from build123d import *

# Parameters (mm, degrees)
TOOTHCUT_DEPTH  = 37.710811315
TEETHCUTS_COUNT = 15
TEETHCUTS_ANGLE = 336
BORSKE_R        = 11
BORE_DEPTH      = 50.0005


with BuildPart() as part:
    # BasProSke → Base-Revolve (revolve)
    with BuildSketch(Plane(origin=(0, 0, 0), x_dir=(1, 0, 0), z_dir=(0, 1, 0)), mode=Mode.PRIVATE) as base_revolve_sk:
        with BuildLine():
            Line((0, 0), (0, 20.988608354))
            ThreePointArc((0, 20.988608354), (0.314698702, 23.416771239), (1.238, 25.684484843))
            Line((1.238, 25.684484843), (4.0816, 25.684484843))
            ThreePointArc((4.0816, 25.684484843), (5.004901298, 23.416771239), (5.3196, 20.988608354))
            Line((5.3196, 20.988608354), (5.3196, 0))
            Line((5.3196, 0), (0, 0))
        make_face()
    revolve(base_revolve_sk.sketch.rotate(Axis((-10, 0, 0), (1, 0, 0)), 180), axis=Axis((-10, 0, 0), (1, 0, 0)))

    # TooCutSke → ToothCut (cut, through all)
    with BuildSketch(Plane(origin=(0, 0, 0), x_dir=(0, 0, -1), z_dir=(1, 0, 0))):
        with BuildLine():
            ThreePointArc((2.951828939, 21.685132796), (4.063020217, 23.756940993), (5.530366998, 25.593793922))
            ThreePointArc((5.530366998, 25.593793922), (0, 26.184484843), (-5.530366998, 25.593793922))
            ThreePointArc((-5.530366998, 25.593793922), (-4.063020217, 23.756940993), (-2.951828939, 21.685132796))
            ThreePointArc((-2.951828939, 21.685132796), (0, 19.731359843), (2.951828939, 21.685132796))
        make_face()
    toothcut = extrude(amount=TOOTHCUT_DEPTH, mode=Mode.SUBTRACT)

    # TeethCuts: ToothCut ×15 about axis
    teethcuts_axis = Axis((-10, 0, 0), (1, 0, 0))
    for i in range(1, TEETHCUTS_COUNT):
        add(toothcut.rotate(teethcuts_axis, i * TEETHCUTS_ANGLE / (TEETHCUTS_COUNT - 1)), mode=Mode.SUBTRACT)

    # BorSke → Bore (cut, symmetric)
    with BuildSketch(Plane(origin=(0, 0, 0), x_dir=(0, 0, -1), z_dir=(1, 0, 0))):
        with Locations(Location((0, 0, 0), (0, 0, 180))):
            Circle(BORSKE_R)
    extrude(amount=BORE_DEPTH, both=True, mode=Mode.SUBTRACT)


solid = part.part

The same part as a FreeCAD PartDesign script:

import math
import FreeCAD as App
import Part
import Sketcher
Q = App.Units.Quantity

doc = App.newDocument("Part")
body = doc.addObject("PartDesign::Body", "Body")

# Sketch on XZ plane
sketch1 = body.newObject("Sketcher::SketchObject", "Sketch")
sketch1.AttachmentSupport = (doc.getObject("XZ_Plane"), [""])
sketch1.MapMode = "FlatFace"
sketch1.addGeometry([
    Part.LineSegment(App.Vector(0, -21, 0), App.Vector(0, 0, 0)),  # 0
    Part.LineSegment(App.Vector(0, 0, 0), App.Vector(5.3, 0, 0)),  # 1
    Part.LineSegment(App.Vector(5.3, 0, 0), App.Vector(5.3, -21, 0)),  # 2
    Part.ArcOfCircle(Part.Circle(App.Vector(-4.2, -21, 0), App.Vector(0, 0, 1), 9.5), math.radians(-30), math.radians(0)),  # 3
    Part.LineSegment(App.Vector(4.1, -25.7, 0), App.Vector(1.2, -25.7, 0)),  # 4
    Part.ArcOfCircle(Part.Circle(App.Vector(9.5, -21, 0), App.Vector(0, 0, 1), 9.5), math.radians(-180), math.radians(-150)),  # 5
], False)
sketch1.addConstraint([
    Sketcher.Constraint("Coincident", 0, 2, 1, 1),
    Sketcher.Constraint("Coincident", 1, 2, 2, 1),
    Sketcher.Constraint("Tangent", 2, 2, 3, 2),
    Sketcher.Constraint("Coincident", 3, 1, 4, 1),
    Sketcher.Constraint("Coincident", 4, 2, 5, 2),
    Sketcher.Constraint("Tangent", 5, 1, 0, 1),
    Sketcher.Constraint("Vertical", 0),
    Sketcher.Constraint("Horizontal", 1),
    Sketcher.Constraint("Vertical", 2),
    Sketcher.Constraint("Horizontal", 4),
    Sketcher.Constraint("Coincident", 0, 2, -1, 1),
    Sketcher.Constraint("Equal", 3, 5),
    Sketcher.Constraint("Horizontal", 3, 3, 5, 3),
    Sketcher.Constraint("Radius", 3, Q("0.375 in")),
    Sketcher.Constraint("DistanceX", 1, 1, 1, 2, 5.3196),
    Sketcher.Constraint("DistanceX", 4, 2, 4, 1, 2.8436),
    Sketcher.Constraint("DistanceY", 3, 1, -1, 1, Q("1.0112002 in")),
])
revolution = body.newObject("PartDesign::Revolution", "Revolution")
revolution.Profile = sketch1
revolution.ReferenceAxis = (sketch1, ["H_Axis"])
revolution.Angle = 360

# Sketch on YZ plane
sketch2 = body.newObject("Sketcher::SketchObject", "Sketch001")
sketch2.AttachmentSupport = (doc.getObject("YZ_Plane"), [""])
sketch2.MapMode = "FlatFace"
sketch2.addGeometry([
    Part.ArcOfCircle(Part.Circle(App.Vector(16.6, -14.9, 0), App.Vector(0, 0, 1), 13), math.radians(46), math.radians(67)),
    Part.ArcOfCircle(Part.Circle(App.Vector(0, 0, 0), App.Vector(0, 0, 1), 26.2), math.radians(-12), math.radians(12)),
    Part.ArcOfCircle(Part.Circle(App.Vector(16.6, 14.9, 0), App.Vector(0, 0, 1), 13), math.radians(-67), math.radians(-46)),
    Part.ArcOfCircle(Part.Circle(App.Vector(22.9, 0, 0), App.Vector(0, 0, 1), 3.2), math.radians(113), math.radians(247)),
], False)
sketch2.addConstraint([
    Sketcher.Constraint("Coincident", 0, 1, 1, 1),
    Sketcher.Constraint("Coincident", 1, 2, 2, 2),
    Sketcher.Constraint("Tangent", 2, 1, 3, 1),
    Sketcher.Constraint("Tangent", 3, 2, 0, 2),
    Sketcher.Constraint("Coincident", 1, 3, -1, 1),
    Sketcher.Constraint("Equal", 0, 2),
    Sketcher.Constraint("Symmetric", 0, 3, 2, 3, -1),
    Sketcher.Constraint("Radius", 0, Q("0.51 in")),
    Sketcher.Constraint("Radius", 3, 3.20675),
    Sketcher.Constraint("Radius", 1, 26.184485),
    Sketcher.Constraint("DistanceX", -1, 1, 0, 3, 16.623602),
    Sketcher.Constraint("DistanceY", 0, 3, -1, 1, 14.876049),
])
pocket1 = body.newObject("PartDesign::Pocket", "Pocket")
pocket1.Profile = sketch2
pocket1.Type = "ThroughAll"
pocket1.Reversed = True
doc.recompute()

polarpattern = body.newObject("PartDesign::PolarPattern", "PolarPattern")
polarpattern.Originals = [pocket1]
polarpattern.Axis = (doc.getObject("X_Axis"), [""])
polarpattern.Angle = 360
polarpattern.Occurrences = 15
body.Tip = polarpattern

# Sketch on YZ plane
sketch3 = body.newObject("Sketcher::SketchObject", "Sketch002")
sketch3.AttachmentSupport = (doc.getObject("YZ_Plane"), [""])
sketch3.MapMode = "FlatFace"
sketch3.addGeometry(Part.Circle(App.Vector(0, 0, 0), App.Vector(0, 0, 1), 11), False)
sketch3.addConstraint([
    Sketcher.Constraint("Coincident", 0, 3, -1, 1),
    Sketcher.Constraint("Diameter", 0, 22.0),
])
pocket2 = body.newObject("PartDesign::Pocket", "Pocket001")
pocket2.Profile = sketch3
pocket2.Length = 100.001
pocket2.Midplane = True

doc.recompute()
